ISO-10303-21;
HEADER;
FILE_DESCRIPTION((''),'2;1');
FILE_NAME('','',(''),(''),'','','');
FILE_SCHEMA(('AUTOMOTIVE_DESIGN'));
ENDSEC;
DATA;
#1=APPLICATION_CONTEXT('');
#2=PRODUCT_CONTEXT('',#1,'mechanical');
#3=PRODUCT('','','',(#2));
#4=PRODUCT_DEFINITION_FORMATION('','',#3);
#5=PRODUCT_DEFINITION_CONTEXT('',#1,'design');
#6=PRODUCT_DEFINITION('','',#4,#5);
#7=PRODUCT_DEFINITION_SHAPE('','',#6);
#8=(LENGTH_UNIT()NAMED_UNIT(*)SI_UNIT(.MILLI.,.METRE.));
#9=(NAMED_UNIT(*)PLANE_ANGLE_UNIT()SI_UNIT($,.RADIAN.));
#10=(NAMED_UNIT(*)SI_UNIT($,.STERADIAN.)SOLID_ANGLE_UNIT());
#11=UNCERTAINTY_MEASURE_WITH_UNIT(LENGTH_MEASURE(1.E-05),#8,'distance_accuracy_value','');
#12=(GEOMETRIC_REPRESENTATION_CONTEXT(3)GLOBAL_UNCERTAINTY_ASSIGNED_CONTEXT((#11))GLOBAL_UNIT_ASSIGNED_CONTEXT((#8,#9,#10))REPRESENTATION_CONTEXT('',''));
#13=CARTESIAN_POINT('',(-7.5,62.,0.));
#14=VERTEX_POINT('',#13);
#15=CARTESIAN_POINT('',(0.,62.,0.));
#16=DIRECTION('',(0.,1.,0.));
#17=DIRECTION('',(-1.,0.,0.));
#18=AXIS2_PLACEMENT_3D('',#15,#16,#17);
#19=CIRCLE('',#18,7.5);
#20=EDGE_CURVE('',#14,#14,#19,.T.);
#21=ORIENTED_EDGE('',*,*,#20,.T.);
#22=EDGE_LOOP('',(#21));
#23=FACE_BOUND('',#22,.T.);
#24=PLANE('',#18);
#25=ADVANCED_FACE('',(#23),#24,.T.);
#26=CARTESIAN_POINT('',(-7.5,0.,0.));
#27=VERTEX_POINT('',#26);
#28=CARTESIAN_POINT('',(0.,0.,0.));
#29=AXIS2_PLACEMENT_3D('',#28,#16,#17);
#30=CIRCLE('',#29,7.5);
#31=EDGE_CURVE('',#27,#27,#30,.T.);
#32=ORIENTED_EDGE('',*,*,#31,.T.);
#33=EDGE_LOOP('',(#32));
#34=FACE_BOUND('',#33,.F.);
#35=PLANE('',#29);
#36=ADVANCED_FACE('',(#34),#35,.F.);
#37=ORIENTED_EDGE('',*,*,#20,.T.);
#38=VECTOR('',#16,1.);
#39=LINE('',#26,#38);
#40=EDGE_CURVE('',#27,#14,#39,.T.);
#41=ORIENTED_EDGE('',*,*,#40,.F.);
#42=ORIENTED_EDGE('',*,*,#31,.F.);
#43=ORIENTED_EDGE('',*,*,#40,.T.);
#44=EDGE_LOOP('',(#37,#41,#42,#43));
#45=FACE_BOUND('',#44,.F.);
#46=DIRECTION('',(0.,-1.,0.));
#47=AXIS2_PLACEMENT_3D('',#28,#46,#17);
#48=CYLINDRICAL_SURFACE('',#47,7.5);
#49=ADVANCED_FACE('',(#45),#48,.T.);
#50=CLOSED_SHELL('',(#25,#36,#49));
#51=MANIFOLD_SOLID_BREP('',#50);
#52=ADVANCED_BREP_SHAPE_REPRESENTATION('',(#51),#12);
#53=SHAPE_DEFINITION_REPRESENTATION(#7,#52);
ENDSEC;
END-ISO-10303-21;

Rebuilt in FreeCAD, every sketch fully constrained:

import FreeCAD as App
import Part
import Sketcher
Q = App.Units.Quantity

doc = App.newDocument("Part")
body = doc.addObject("PartDesign::Body", "Body")

# Sketch on XZ plane
sketch1 = body.newObject("Sketcher::SketchObject", "Sketch")
sketch1.AttachmentSupport = (doc.getObject("XZ_Plane"), [""])
sketch1.MapMode = "FlatFace"
sketch1.addGeometry(Part.Circle(App.Vector(0, 0, 0), App.Vector(0, 0, 1), 8), False)
sketch1.addConstraint([
    Sketcher.Constraint("Coincident", 0, 3, -1, 1),
    Sketcher.Constraint("Diameter", 0, Q("15 mm")),
])
pad1 = body.newObject("PartDesign::Pad", "Pad")
pad1.Profile = sketch1
pad1.Length = 62
pad1.Reversed = True

doc.recompute()
